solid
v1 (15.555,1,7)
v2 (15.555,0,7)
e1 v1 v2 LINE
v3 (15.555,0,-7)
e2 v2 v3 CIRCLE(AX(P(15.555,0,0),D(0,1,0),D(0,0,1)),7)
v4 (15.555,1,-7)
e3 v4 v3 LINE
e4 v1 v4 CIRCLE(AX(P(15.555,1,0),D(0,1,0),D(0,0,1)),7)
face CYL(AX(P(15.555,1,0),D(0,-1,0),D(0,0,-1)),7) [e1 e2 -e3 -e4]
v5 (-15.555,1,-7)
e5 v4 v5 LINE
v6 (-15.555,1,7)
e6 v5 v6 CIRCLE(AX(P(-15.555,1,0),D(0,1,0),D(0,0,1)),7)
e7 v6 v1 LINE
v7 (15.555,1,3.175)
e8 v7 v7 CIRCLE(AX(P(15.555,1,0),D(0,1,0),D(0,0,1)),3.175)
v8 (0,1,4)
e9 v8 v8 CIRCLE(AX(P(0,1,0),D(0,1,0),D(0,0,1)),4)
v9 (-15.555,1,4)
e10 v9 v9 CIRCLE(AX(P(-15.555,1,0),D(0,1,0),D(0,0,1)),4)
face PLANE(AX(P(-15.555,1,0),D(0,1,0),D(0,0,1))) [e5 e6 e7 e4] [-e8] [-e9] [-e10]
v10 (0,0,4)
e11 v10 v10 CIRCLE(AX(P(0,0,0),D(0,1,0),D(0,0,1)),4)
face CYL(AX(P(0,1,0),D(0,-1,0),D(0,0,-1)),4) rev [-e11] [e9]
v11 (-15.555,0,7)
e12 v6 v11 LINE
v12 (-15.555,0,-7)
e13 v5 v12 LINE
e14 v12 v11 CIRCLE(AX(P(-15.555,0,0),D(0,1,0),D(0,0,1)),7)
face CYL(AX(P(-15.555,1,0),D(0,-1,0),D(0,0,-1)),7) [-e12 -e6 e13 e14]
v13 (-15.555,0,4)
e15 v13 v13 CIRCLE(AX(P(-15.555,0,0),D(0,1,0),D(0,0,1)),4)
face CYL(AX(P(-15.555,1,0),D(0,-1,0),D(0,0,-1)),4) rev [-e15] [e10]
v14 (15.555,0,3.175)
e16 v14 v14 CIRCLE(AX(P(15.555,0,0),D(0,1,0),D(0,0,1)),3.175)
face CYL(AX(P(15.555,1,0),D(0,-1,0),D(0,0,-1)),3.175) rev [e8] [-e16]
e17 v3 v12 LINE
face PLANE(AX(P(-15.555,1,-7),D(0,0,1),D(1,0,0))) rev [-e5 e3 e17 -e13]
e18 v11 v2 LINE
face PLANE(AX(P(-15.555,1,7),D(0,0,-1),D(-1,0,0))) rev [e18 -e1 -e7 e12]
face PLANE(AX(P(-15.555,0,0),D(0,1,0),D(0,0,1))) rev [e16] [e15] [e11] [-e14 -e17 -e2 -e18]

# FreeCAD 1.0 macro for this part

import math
import FreeCAD as App
import Part
import Sketcher
Q = App.Units.Quantity

doc = App.newDocument("Part")
body = doc.addObject("PartDesign::Body", "Body")

# Sketch on XZ plane
sketch1 = body.newObject("Sketcher::SketchObject", "Sketch")
sketch1.AttachmentSupport = (doc.getObject("XZ_Plane"), [""])
sketch1.MapMode = "FlatFace"
sketch1.addGeometry(Part.LineSegment(App.Vector(15.555, -7, 0), App.Vector(-15.555, -7, 0)), False)
sketch1.addGeometry(Part.ArcOfCircle(Part.Circle(App.Vector(-15.555, 0, 0), App.Vector(0, 0, 1), 7), math.radians(90), math.radians(270)), False)
sketch1.addGeometry(Part.LineSegment(App.Vector(-15.555, 7, 0), App.Vector(15.555, 7, 0)), False)
sketch1.addGeometry(Part.ArcOfCircle(Part.Circle(App.Vector(15.555, 0, 0), App.Vector(0, 0, 1), 7), math.radians(-90), math.radians(90)), False)
sketch1.addGeometry(Part.Circle(App.Vector(15.555, 0, 0), App.Vector(0, 0, 1), 3.175), False)
sketch1.addGeometry(Part.Circle(App.Vector(0, 0, 0), App.Vector(0, 0, 1), 4), False)
sketch1.addGeometry(Part.Circle(App.Vector(-15.555, 0, 0), App.Vector(0, 0, 1), 4), False)
sketch1.addConstraint(Sketcher.Constraint("Tangent", 0, 2, 1, 2))
sketch1.addConstraint(Sketcher.Constraint("Tangent", 1, 1, 2, 1))
sketch1.addConstraint(Sketcher.Constraint("Tangent", 2, 2, 3, 2))
sketch1.addConstraint(Sketcher.Constraint("Tangent", 3, 1, 0, 1))
sketch1.addConstraint(Sketcher.Constraint("Horizontal", 0))
sketch1.addConstraint(Sketcher.Constraint("Horizontal", 2))
sketch1.addConstraint(Sketcher.Constraint("Coincident", 5, 3, -1, 1))
sketch1.addConstraint(Sketcher.Constraint("Coincident", 4, 3, 3, 3))
sketch1.addConstraint(Sketcher.Constraint("Coincident", 6, 3, 1, 3))
sketch1.addConstraint(Sketcher.Constraint("Equal", 5, 6))
sketch1.addConstraint(Sketcher.Constraint("Symmetric", 1, 3, 3, 3, -1, 1))
sketch1.addConstraint(Sketcher.Constraint("Diameter", 5, Q("8 mm")))
sketch1.addConstraint(Sketcher.Constraint("Radius", 1, Q("7 mm")))
sketch1.addConstraint(Sketcher.Constraint("Diameter", 4, Q("6.35 mm")))
sketch1.addConstraint(Sketcher.Constraint("DistanceX", 0, 2, 0, 1, Q("31.11 mm")))
pad1 = body.newObject("PartDesign::Pad", "Pad")
pad1.Profile = sketch1
pad1.Length = 1
pad1.Reversed = True

doc.recompute()
